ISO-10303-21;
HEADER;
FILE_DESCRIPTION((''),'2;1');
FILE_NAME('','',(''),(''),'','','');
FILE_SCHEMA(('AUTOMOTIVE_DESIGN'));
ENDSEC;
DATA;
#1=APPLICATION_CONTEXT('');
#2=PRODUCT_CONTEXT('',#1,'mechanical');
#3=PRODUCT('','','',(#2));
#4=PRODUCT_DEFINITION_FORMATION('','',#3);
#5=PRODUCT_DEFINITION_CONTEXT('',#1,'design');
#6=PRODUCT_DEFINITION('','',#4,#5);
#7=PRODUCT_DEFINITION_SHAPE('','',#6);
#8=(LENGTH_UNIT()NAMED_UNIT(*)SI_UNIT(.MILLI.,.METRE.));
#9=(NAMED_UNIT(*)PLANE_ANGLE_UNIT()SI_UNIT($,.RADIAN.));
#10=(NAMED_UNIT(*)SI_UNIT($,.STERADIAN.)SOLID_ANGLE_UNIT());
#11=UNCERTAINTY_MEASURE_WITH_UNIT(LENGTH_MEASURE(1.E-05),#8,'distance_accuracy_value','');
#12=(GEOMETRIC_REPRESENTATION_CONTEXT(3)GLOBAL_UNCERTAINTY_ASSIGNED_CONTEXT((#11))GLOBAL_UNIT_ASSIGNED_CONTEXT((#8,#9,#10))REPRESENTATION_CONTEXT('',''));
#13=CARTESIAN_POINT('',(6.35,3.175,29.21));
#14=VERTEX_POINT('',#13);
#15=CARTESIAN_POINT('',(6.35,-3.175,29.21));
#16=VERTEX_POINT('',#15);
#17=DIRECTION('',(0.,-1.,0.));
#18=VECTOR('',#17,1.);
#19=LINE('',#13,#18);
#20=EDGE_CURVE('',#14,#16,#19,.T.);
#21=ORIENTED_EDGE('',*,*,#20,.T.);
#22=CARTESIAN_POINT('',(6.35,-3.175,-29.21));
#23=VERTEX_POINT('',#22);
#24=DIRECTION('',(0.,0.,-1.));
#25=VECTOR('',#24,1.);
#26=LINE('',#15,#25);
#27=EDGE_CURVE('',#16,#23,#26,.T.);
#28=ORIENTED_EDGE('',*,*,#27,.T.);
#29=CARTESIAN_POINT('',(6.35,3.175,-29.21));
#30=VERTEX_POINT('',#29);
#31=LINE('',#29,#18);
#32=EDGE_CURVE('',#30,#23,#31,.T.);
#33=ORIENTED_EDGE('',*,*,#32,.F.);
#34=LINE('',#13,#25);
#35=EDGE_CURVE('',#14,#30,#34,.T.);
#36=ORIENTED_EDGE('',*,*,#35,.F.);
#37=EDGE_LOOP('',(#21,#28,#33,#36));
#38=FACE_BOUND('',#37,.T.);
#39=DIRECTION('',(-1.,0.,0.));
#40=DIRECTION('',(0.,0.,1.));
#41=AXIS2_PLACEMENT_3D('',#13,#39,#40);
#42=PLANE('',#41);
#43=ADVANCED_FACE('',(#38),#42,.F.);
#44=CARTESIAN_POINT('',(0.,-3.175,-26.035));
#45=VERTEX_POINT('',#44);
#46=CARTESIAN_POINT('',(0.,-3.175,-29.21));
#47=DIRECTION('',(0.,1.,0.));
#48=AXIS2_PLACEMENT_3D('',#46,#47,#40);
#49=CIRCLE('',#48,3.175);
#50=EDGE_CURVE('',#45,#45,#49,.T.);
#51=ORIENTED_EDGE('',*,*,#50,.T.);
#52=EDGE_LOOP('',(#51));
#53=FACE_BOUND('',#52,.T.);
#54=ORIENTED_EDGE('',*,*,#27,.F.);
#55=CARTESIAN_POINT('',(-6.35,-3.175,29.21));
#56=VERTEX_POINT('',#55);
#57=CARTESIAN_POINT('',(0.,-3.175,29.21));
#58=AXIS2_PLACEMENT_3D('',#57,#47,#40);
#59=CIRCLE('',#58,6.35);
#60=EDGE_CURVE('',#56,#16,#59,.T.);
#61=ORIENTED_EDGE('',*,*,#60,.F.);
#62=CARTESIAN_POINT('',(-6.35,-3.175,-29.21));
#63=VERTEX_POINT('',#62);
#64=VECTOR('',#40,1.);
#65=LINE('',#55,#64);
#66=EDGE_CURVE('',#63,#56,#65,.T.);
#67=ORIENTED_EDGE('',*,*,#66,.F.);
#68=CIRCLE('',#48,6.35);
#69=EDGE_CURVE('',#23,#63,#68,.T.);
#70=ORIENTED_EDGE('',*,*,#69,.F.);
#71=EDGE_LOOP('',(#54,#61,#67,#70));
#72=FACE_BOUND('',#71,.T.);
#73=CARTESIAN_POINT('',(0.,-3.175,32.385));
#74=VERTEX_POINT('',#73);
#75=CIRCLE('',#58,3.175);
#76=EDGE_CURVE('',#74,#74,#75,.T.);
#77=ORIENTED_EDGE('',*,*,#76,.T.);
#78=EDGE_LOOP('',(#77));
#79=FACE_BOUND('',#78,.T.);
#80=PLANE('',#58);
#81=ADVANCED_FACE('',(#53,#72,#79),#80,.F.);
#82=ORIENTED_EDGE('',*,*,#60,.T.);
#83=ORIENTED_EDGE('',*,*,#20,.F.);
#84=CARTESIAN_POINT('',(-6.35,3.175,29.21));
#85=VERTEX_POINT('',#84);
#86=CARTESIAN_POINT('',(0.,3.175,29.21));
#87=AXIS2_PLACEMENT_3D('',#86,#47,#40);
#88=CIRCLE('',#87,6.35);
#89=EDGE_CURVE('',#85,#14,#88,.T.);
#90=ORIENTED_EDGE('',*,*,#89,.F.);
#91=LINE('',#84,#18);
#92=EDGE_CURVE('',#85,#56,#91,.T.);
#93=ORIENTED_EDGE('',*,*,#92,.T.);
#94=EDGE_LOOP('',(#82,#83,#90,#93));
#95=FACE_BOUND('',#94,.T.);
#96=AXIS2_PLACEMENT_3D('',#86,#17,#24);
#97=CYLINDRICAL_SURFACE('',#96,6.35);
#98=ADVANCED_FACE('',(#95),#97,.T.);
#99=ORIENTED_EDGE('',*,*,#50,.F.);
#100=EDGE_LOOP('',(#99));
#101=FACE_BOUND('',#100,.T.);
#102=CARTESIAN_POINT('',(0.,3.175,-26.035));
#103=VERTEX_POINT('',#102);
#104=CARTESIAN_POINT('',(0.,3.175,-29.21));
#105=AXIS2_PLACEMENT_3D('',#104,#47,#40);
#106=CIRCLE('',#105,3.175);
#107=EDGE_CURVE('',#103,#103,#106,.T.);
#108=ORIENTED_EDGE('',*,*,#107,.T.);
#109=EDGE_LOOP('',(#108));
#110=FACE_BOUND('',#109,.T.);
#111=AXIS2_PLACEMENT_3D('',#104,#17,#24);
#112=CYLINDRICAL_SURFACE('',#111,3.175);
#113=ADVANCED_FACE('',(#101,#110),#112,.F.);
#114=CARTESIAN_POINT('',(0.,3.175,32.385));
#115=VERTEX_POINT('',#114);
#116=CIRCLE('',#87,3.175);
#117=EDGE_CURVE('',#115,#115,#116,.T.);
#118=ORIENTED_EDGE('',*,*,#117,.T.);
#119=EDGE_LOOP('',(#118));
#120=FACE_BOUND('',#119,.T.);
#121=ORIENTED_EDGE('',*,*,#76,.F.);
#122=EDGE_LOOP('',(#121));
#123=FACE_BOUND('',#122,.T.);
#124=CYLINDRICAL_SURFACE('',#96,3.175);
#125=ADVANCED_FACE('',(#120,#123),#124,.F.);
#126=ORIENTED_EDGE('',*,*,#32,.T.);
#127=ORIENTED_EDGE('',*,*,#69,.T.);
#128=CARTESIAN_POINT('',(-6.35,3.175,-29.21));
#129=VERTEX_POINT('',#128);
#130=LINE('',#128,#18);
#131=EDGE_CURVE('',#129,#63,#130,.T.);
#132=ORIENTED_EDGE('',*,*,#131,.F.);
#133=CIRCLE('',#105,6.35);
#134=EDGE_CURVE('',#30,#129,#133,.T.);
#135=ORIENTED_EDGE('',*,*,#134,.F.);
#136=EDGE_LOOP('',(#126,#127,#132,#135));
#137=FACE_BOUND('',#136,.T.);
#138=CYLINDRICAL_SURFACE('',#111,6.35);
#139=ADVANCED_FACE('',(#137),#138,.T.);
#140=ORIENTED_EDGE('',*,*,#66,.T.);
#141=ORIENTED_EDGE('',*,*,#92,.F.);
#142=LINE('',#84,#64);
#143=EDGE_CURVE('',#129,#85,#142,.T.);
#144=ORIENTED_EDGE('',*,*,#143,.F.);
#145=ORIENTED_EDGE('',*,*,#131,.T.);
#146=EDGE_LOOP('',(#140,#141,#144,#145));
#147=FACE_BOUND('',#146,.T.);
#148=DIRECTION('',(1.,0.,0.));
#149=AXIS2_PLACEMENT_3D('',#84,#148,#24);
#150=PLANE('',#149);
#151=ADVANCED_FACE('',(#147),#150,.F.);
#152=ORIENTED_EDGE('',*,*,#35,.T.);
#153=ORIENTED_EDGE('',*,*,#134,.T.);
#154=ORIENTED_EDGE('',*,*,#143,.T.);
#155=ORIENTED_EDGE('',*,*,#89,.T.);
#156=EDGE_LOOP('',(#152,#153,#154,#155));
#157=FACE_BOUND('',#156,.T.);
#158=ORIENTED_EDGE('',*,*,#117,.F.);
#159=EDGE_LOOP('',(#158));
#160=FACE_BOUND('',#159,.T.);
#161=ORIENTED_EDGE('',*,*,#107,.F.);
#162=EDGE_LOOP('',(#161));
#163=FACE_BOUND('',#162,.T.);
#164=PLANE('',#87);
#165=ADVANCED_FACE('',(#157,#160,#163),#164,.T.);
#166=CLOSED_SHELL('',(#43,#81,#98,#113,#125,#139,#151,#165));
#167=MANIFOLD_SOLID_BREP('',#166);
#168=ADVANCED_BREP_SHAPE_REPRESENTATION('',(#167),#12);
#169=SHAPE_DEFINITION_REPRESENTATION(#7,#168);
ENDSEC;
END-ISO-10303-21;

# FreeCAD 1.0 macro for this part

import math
import FreeCAD as App
import Part
import Sketcher
from FreeCAD import Vector
Q = App.Units.Quantity

doc = App.newDocument("Part")
body = doc.addObject("PartDesign::Body", "Body")

sketch1 = body.newObject("Sketcher::SketchObject", "Sketch")
sketch1.AttachmentSupport = (doc.getObject("XZ_Plane"), [""])
sketch1.MapMode = "FlatFace"
sketch1.addGeometry([
    Part.LineSegment(Vector(-6.3, -29.2, 0), Vector(-6.3, 29.2, 0)),
    Part.ArcOfCircle(Part.Circle(Vector(0, 29.2, 0), Vector(0, 0, 1), 6.3), math.radians(0), math.radians(180)),
    Part.LineSegment(Vector(6.3, 29.2, 0), Vector(6.3, -29.2, 0)),
    Part.ArcOfCircle(Part.Circle(Vector(0, -29.2, 0), Vector(0, 0, 1), 6.3), math.radians(180), math.radians(360)),
    Part.Circle(Vector(0, 29.2, 0), Vector(0, 0, 1), 3.2),
    Part.Circle(Vector(0, -29.2, 0), Vector(0, 0, 1), 3.2),
], False)
sketch1.addConstraint([
    Sketcher.Constraint("Tangent", 0, 2, 1, 2),
    Sketcher.Constraint("Tangent", 1, 1, 2, 1),
    Sketcher.Constraint("Tangent", 2, 2, 3, 2),
    Sketcher.Constraint("Tangent", 3, 1, 0, 1),
    Sketcher.Constraint("Vertical", 0),
    Sketcher.Constraint("Vertical", 2),
    Sketcher.Constraint("Coincident", 4, 3, 1, 3),
    Sketcher.Constraint("Coincident", 5, 3, 3, 3),
    Sketcher.Constraint("Equal", 4, 5),
    Sketcher.Constraint("Symmetric", 1, 3, 3, 3, -1, 1),
    Sketcher.Constraint("Diameter", 4, Q("0.25 in")),
    Sketcher.Constraint("Radius", 1, Q("0.25 in")),
    Sketcher.Constraint("DistanceY", 0, 1, 0, 2, Q("2.3 in")),
])
pad1 = body.newObject("PartDesign::Pad", "Pad")
pad1.Profile = sketch1
pad1.Length = Q("0.25 in")
pad1.Midplane = True

doc.recompute()
